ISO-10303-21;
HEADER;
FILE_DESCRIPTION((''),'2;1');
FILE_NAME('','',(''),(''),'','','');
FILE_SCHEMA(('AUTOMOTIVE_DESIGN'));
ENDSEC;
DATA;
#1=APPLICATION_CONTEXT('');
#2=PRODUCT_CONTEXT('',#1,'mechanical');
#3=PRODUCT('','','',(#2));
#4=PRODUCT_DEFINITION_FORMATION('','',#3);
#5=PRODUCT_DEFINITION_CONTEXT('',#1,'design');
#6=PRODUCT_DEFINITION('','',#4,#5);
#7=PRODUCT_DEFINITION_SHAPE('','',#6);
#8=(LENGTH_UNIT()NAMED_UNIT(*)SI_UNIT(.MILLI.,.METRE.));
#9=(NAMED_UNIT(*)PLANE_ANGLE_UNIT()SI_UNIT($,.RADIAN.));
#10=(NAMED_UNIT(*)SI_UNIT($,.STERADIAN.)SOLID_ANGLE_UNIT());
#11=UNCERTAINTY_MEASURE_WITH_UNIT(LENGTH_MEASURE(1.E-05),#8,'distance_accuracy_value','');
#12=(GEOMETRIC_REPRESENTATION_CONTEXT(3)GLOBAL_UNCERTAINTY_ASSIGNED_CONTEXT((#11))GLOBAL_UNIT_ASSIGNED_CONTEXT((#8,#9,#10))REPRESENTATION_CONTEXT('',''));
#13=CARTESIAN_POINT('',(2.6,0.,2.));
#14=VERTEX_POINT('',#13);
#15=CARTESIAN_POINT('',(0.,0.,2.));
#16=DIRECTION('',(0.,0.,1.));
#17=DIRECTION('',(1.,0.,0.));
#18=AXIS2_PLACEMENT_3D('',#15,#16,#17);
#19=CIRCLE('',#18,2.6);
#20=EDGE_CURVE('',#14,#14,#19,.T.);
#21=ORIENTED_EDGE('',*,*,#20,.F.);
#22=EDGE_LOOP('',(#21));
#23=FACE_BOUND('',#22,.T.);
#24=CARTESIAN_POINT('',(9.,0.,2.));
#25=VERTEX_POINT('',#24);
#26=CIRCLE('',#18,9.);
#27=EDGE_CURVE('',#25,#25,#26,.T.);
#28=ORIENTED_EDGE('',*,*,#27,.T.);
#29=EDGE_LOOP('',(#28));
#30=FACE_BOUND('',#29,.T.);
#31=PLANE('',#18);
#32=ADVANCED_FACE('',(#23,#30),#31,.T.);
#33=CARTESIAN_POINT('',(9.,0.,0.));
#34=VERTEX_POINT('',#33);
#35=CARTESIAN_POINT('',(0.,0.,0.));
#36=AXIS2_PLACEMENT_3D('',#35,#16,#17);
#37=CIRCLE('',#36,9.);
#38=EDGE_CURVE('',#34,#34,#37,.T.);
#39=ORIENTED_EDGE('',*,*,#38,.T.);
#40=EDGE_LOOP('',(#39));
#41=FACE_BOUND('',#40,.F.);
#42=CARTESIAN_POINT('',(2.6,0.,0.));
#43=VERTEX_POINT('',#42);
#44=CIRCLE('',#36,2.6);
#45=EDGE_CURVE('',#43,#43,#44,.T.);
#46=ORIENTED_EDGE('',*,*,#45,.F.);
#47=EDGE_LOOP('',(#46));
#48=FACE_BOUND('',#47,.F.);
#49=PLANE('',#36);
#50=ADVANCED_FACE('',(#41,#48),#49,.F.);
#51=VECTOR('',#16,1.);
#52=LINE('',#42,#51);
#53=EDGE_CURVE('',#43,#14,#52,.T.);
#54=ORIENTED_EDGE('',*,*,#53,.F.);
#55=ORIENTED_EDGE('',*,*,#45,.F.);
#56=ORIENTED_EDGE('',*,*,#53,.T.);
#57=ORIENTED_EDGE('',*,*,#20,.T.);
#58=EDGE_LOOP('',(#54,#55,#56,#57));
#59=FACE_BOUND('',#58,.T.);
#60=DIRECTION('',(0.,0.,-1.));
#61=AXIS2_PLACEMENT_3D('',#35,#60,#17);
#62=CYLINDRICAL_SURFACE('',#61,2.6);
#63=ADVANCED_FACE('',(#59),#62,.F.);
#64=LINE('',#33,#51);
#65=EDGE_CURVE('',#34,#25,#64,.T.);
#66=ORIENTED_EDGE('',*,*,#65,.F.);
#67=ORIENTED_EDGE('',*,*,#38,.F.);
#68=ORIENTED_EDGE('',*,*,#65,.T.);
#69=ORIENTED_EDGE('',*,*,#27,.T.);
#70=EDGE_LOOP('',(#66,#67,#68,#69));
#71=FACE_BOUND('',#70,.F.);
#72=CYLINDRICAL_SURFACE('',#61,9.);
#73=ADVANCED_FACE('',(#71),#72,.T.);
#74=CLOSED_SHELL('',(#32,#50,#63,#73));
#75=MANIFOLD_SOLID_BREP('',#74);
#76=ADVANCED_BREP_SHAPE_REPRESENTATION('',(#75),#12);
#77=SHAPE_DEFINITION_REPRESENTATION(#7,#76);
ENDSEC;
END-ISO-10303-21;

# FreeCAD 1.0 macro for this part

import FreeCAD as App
import Part
import Sketcher

V = App.Vector

doc = App.newDocument("Part")
params = doc.addObject("Spreadsheet::Sheet", "Params")
for row, (alias, value) in enumerate([
    ("sketch1_diameter", "18 mm"),
    ("sketch1_diameter2", "5.2 mm"),
    ("pad1_length", "2 mm"),
], start=1):
    params.set(f"A{row}", alias)
    params.set(f"B{row}", "=" + value)
    params.setAlias(f"B{row}", alias)

body = doc.addObject("PartDesign::Body", "Body")

# Sketch on XY plane
sketch1 = body.newObject("Sketcher::SketchObject", "Sketch")
sketch1.AttachmentSupport = (doc.getObject("XY_Plane"), [""])
sketch1.MapMode = "FlatFace"
sketch1.addGeometry([
    Part.Circle(V(0, 0, 0), V(0, 0, 1), 9),
    Part.Circle(V(0, 0, 0), V(0, 0, 1), 2.6),
], False)
sketch1.addConstraint([
    Sketcher.Constraint("Coincident", 0, 3, -1, 1),
    Sketcher.Constraint("Coincident", 1, 3, -1, 1),
    Sketcher.Constraint("Diameter", 0, 18.0),
    Sketcher.Constraint("Diameter", 1, 5.2),
])
sketch1.setExpression("Constraints[2]", "Params.sketch1_diameter")
sketch1.setExpression("Constraints[3]", "Params.sketch1_diameter2")
pad1 = body.newObject("PartDesign::Pad", "Pad")
pad1.Profile = sketch1
pad1.setExpression("Length", "Params.pad1_length")

doc.recompute()
